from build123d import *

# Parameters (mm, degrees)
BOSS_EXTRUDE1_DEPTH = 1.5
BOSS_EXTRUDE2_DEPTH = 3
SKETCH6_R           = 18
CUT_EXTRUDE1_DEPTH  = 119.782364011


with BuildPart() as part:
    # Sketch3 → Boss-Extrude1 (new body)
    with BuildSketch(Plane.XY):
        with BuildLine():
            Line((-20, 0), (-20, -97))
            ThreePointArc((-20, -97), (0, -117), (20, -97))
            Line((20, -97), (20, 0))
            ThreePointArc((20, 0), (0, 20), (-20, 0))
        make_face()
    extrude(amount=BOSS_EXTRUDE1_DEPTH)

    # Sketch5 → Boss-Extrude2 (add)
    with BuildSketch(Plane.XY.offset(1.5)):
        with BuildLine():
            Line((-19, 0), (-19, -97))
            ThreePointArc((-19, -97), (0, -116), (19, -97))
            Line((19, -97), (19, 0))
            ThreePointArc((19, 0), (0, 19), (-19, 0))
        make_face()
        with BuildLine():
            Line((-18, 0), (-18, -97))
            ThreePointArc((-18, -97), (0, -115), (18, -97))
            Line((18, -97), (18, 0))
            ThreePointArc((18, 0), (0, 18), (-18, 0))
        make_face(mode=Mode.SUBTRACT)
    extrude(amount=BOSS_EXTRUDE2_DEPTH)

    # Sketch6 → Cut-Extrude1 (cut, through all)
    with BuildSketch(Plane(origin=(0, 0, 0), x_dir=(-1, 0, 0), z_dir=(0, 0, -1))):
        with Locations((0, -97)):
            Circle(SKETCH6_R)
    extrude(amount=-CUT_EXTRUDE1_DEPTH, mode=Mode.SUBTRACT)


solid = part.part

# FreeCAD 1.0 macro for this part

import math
import FreeCAD as App
import Part
import Sketcher

doc = App.newDocument("Part")
body = doc.addObject("PartDesign::Body", "Body")

# Sketch on XY plane
sketch1 = doc.addObject("Sketcher::SketchObject", "Sketch")
body.addObject(sketch1)
sketch1.AttachmentSupport = (doc.XY_Plane, [""])
sketch1.MapMode = "FlatFace"
sketch1.addGeometry(Part.LineSegment(App.Vector(-20, 0, 0), App.Vector(-20, -97, 0)), False)
sketch1.addGeometry(Part.ArcOfCircle(Part.Circle(App.Vector(0, -97, 0), App.Vector(0, 0, 1), 20), math.radians(180), math.radians(360)), False)
sketch1.addGeometry(Part.LineSegment(App.Vector(20, -97, 0), App.Vector(20, 0, 0)), False)
sketch1.addGeometry(Part.ArcOfCircle(Part.Circle(App.Vector(0, 0, 0), App.Vector(0, 0, 1), 20), math.radians(0), math.radians(180)), False)
sketch1.addConstraint(Sketcher.Constraint("Tangent", 0, 2, 1, 1))
sketch1.addConstraint(Sketcher.Constraint("Tangent", 1, 2, 2, 1))
sketch1.addConstraint(Sketcher.Constraint("Tangent", 2, 2, 3, 1))
sketch1.addConstraint(Sketcher.Constraint("Tangent", 3, 2, 0, 1))
sketch1.addConstraint(Sketcher.Constraint("Vertical", 0))
sketch1.addConstraint(Sketcher.Constraint("Vertical", 2))
sketch1.addConstraint(Sketcher.Constraint("Coincident", 3, 3, -1, 1))
sketch1.addConstraint(Sketcher.Constraint("Radius", 1, 20.0))
sketch1.addConstraint(Sketcher.Constraint("DistanceY", 0, 2, 0, 1, 97.0))
pad1 = doc.addObject("PartDesign::Pad", "Pad")
body.addObject(pad1)
pad1.Profile = sketch1
pad1.Length = 1.5

# Sketch on XY plane
sketch2 = doc.addObject("Sketcher::SketchObject", "Sketch001")
body.addObject(sketch2)
sketch2.AttachmentSupport = (doc.XY_Plane, [""])
sketch2.MapMode = "FlatFace"
sketch2.AttachmentOffset = App.Placement(App.Vector(0, 0, 1.5), App.Rotation())
sketch2.addGeometry(Part.LineSegment(App.Vector(-19, 0, 0), App.Vector(-19, -97, 0)), False)
sketch2.addGeometry(Part.ArcOfCircle(Part.Circle(App.Vector(0, -97, 0), App.Vector(0, 0, 1), 19), math.radians(180), math.radians(360)), False)
sketch2.addGeometry(Part.LineSegment(App.Vector(19, -97, 0), App.Vector(19, 0, 0)), False)
sketch2.addGeometry(Part.ArcOfCircle(Part.Circle(App.Vector(0, 0, 0), App.Vector(0, 0, 1), 19), math.radians(0), math.radians(180)), False)
sketch2.addGeometry(Part.LineSegment(App.Vector(-18, -97, 0), App.Vector(-18, 0, 0)), False)
sketch2.addGeometry(Part.ArcOfCircle(Part.Circle(App.Vector(0, 0, 0), App.Vector(0, 0, 1), 18), math.radians(0), math.radians(180)), False)
sketch2.addGeometry(Part.LineSegment(App.Vector(18, 0, 0), App.Vector(18, -97, 0)), False)
sketch2.addGeometry(Part.ArcOfCircle(Part.Circle(App.Vector(0, -97, 0), App.Vector(0, 0, 1), 18), math.radians(180), math.radians(360)), False)
sketch2.addConstraint(Sketcher.Constraint("Tangent", 0, 2, 1, 1))
sketch2.addConstraint(Sketcher.Constraint("Tangent", 1, 2, 2, 1))
sketch2.addConstraint(Sketcher.Constraint("Tangent", 2, 2, 3, 1))
sketch2.addConstraint(Sketcher.Constraint("Tangent", 3, 2, 0, 1))
sketch2.addConstraint(Sketcher.Constraint("Tangent", 4, 2, 5, 2))
sketch2.addConstraint(Sketcher.Constraint("Tangent", 5, 1, 6, 1))
sketch2.addConstraint(Sketcher.Constraint("Tangent", 6, 2, 7, 2))
sketch2.addConstraint(Sketcher.Constraint("Tangent", 7, 1, 4, 1))
sketch2.addConstraint(Sketcher.Constraint("Vertical", 0))
sketch2.addConstraint(Sketcher.Constraint("Vertical", 2))
sketch2.addConstraint(Sketcher.Constraint("Vertical", 4))
sketch2.addConstraint(Sketcher.Constraint("Vertical", 6))
sketch2.addConstraint(Sketcher.Constraint("Coincident", 3, 3, -1, 1))
sketch2.addConstraint(Sketcher.Constraint("Coincident", 5, 3, -1, 1))
sketch2.addConstraint(Sketcher.Constraint("Horizontal", 7, 3, 0, 2))
sketch2.addConstraint(Sketcher.Constraint("Radius", 1, 19.0))
sketch2.addConstraint(Sketcher.Constraint("Radius", 5, 18.0))
sketch2.addConstraint(Sketcher.Constraint("DistanceY", 0, 2, 0, 1, 97.0))
pad2 = doc.addObject("PartDesign::Pad", "Pad001")
body.addObject(pad2)
pad2.Profile = sketch2
pad2.Length = 3

# Sketch on XY plane
sketch3 = doc.addObject("Sketcher::SketchObject", "Sketch002")
body.addObject(sketch3)
sketch3.AttachmentSupport = (doc.XY_Plane, [""])
sketch3.MapMode = "FlatFace"
sketch3.addGeometry(Part.Circle(App.Vector(0, -97, 0), App.Vector(0, 0, 1), 18), False)
sketch3.addConstraint(Sketcher.Constraint("PointOnObject", 0, 3, -2))
sketch3.addConstraint(Sketcher.Constraint("Diameter", 0, 36.0))
sketch3.addConstraint(Sketcher.Constraint("DistanceY", 0, 3, -1, 1, 97.0))
pocket1 = doc.addObject("PartDesign::Pocket", "Pocket")
body.addObject(pocket1)
pocket1.Profile = sketch3
pocket1.Type = "ThroughAll"
pocket1.Reversed = True

doc.recompute()
